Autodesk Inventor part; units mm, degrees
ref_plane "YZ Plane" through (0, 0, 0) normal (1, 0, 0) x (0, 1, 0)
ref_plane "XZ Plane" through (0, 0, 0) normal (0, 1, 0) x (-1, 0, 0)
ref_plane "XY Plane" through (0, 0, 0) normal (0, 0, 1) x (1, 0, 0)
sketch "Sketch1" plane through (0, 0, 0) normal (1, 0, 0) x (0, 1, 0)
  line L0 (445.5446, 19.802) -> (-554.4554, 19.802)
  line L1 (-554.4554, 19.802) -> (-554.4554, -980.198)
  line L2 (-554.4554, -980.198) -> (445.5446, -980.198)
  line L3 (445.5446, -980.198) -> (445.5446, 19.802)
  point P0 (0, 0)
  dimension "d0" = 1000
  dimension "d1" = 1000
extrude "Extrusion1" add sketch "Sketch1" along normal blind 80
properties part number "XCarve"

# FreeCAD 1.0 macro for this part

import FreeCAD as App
import Part
import Sketcher

V = App.Vector
Q = App.Units.Quantity

doc = App.newDocument("Part")
body = doc.addObject("PartDesign::Body", "Body")

sketch1 = body.newObject("Sketcher::SketchObject", "Sketch")
sketch1.AttachmentSupport = (doc.getObject("YZ_Plane"), [""])
sketch1.MapMode = "FlatFace"
sketch1.addGeometry(Part.LineSegment(V(446, -980, 0), V(446, 20, 0)), False)
sketch1.addGeometry(Part.LineSegment(V(446, 20, 0), V(-554, 20, 0)), False)
sketch1.addGeometry(Part.LineSegment(V(-554, 20, 0), V(-554, -980, 0)), False)
sketch1.addGeometry(Part.LineSegment(V(-554, -980, 0), V(446, -980, 0)), False)
sketch1.addConstraint(Sketcher.Constraint("Coincident", 0, 2, 1, 1))
sketch1.addConstraint(Sketcher.Constraint("Coincident", 1, 2, 2, 1))
sketch1.addConstraint(Sketcher.Constraint("Coincident", 2, 2, 3, 1))
sketch1.addConstraint(Sketcher.Constraint("Coincident", 3, 2, 0, 1))
sketch1.addConstraint(Sketcher.Constraint("Vertical", 0))
sketch1.addConstraint(Sketcher.Constraint("Horizontal", 1))
sketch1.addConstraint(Sketcher.Constraint("Vertical", 2))
sketch1.addConstraint(Sketcher.Constraint("Horizontal", 3))
sketch1.addConstraint(Sketcher.Constraint("Equal", 3, 0))
sketch1.addConstraint(Sketcher.Constraint("DistanceX", 1, 2, 1, 1, Q("1000 mm")))
sketch1.addConstraint(Sketcher.Constraint("DistanceY", -1, 1, 0, 2, Q("19.802 mm")))
sketch1.addConstraint(Sketcher.Constraint("DistanceX", -1, 1, 0, 2, Q("445.5446 mm")))
pad1 = body.newObject("PartDesign::Pad", "Pad")
pad1.Profile = sketch1
pad1.Length = 80

doc.recompute()
